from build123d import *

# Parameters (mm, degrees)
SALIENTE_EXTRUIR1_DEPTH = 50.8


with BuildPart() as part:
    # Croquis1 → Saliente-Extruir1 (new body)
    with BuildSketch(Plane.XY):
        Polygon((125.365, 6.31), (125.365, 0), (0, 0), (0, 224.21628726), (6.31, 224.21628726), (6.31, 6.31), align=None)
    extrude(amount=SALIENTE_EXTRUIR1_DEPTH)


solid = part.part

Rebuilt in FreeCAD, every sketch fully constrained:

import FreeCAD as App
import Part
import Sketcher
Q = App.Units.Quantity


def add_polygon(sketch, points):
    """Adds a closed chain of lines whose ends are joined by coincident constraints."""
    first, n = sketch.GeometryCount, len(points)
    for a, b in zip(points, points[1:] + points[:1]):
        sketch.addGeometry(Part.LineSegment(App.Vector(*a, 0), App.Vector(*b, 0)), False)
    for i in range(n):
        sketch.addConstraint(Sketcher.Constraint("Coincident", first + i, 2, first + (i + 1) % n, 1))

doc = App.newDocument("Part")
body = doc.addObject("PartDesign::Body", "Body")

# Sketch on XY plane
sketch1 = body.newObject("Sketcher::SketchObject", "Sketch")
sketch1.AttachmentSupport = (doc.getObject("XY_Plane"), [""])
sketch1.MapMode = "FlatFace"
add_polygon(sketch1, [(125, 0), (125, 6), (6, 6), (6, 224), (0, 224), (0, 0)])  # lines 0-5
sketch1.addConstraint([
    Sketcher.Constraint("Vertical", 0),
    Sketcher.Constraint("Horizontal", 1),
    Sketcher.Constraint("Vertical", 2),
    Sketcher.Constraint("Horizontal", 3),
    Sketcher.Constraint("Vertical", 4),
    Sketcher.Constraint("Horizontal", 5),
    Sketcher.Constraint("Coincident", 4, 2, -1, 1),
    Sketcher.Constraint("Equal", 3, 0),
    Sketcher.Constraint("DistanceX", 1, 2, 1, 1, 119.055),
    Sketcher.Constraint("DistanceX", 3, 2, 3, 1, 6.31),
    Sketcher.Constraint("DistanceY", 2, 1, 2, 2, 217.906287),
])
pad1 = body.newObject("PartDesign::Pad", "Pad")
pad1.Profile = sketch1
pad1.Length = Q("2 in")

doc.recompute()
